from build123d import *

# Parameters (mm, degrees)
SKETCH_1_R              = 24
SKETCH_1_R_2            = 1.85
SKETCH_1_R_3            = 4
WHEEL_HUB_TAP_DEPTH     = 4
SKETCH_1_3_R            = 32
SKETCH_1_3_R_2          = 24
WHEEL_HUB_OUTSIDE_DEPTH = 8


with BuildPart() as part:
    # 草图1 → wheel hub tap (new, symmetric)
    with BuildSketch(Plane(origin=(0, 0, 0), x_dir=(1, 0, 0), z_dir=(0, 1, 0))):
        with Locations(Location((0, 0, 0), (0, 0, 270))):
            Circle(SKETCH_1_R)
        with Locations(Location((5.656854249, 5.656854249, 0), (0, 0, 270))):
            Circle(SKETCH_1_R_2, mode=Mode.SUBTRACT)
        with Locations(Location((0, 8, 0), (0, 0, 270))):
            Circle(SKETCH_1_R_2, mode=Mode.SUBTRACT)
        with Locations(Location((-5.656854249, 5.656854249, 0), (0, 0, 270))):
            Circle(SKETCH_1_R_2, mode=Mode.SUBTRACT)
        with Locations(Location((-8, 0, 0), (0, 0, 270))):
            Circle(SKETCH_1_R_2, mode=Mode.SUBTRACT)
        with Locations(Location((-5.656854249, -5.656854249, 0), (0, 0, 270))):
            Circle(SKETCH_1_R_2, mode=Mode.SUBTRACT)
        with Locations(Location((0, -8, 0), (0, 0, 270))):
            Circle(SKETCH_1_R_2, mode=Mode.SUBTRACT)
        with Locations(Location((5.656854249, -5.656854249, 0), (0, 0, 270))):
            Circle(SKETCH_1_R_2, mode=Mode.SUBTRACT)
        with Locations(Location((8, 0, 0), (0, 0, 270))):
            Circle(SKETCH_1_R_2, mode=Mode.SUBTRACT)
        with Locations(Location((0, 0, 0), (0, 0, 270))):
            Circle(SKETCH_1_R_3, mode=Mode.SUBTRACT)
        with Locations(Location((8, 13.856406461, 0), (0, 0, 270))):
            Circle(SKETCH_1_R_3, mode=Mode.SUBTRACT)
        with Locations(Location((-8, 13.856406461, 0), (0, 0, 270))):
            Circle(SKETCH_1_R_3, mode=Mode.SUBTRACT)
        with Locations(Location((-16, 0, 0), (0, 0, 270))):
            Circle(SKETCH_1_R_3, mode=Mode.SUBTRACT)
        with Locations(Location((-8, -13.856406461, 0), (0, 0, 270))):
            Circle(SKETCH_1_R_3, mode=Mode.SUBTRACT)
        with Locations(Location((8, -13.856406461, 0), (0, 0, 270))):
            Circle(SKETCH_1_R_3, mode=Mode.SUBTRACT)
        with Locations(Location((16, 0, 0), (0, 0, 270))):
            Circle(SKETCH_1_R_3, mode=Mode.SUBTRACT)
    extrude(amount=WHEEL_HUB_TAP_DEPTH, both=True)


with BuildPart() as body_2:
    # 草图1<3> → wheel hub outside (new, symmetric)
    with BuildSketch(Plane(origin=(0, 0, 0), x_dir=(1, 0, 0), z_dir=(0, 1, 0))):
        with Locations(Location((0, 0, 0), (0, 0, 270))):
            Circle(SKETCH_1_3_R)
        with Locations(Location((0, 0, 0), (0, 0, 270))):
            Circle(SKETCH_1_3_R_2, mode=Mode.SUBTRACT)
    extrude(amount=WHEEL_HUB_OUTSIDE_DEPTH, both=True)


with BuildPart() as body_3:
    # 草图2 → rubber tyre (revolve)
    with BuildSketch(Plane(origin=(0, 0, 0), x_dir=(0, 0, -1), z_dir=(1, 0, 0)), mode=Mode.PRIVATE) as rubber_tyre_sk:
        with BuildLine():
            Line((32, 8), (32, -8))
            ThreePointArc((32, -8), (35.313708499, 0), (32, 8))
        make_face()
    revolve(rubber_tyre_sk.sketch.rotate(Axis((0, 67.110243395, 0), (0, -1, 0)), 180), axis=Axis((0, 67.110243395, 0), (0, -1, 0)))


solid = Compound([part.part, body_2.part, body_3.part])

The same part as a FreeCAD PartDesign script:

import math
import FreeCAD as App
import Part
import Sketcher

V = App.Vector

doc = App.newDocument("Part")
body = doc.addObject("PartDesign::Body", "Body")

sketch1 = body.newObject("Sketcher::SketchObject", "Sketch")
sketch1.AttachmentSupport = (doc.getObject("XZ_Plane"), [""])
sketch1.MapMode = "FlatFace"
sketch1.addGeometry([
    Part.Circle(V(0, 0, 0), V(0, 0, 1), 24),
    Part.Circle(V(-8, -13.9, 0), V(0, 0, 1), 4),
    Part.Circle(V(-5.7, -5.7, 0), V(0, 0, 1), 1.9),
    Part.Circle(V(-16, 0, 0), V(0, 0, 1), 4),
    Part.Circle(V(-8, 0, 0), V(0, 0, 1), 1.9),
    Part.Circle(V(-5.7, 5.7, 0), V(0, 0, 1), 1.9),
    Part.Circle(V(-8, 13.9, 0), V(0, 0, 1), 4),
    Part.Circle(V(8, -13.9, 0), V(0, 0, 1), 4),
    Part.Circle(V(0, -8, 0), V(0, 0, 1), 1.9),
    Part.Circle(V(0, 0, 0), V(0, 0, 1), 4),
    Part.Circle(V(5.7, -5.7, 0), V(0, 0, 1), 1.9),
    Part.Circle(V(8, 0, 0), V(0, 0, 1), 1.9),
    Part.Circle(V(16, 0, 0), V(0, 0, 1), 4),
    Part.Circle(V(0, 8, 0), V(0, 0, 1), 1.9),
    Part.Circle(V(5.7, 5.7, 0), V(0, 0, 1), 1.9),
    Part.Circle(V(8, 13.9, 0), V(0, 0, 1), 4),
], False)
sketch1.addConstraint([
    Sketcher.Constraint("Coincident", 0, 3, -1, 1),
    Sketcher.Constraint("Coincident", 9, 3, -1, 1),
    Sketcher.Constraint("Equal", 1, 3),
    Sketcher.Constraint("Equal", 2, 4),
    Sketcher.Constraint("Equal", 4, 5),
    Sketcher.Constraint("Equal", 3, 6),
    Sketcher.Constraint("Equal", 6, 7),
    Sketcher.Constraint("Equal", 5, 8),
    Sketcher.Constraint("Equal", 7, 9),
    Sketcher.Constraint("Equal", 8, 10),
    Sketcher.Constraint("Equal", 10, 11),
    Sketcher.Constraint("Equal", 9, 12),
    Sketcher.Constraint("Equal", 11, 13),
    Sketcher.Constraint("Equal", 13, 14),
    Sketcher.Constraint("Equal", 12, 15),
    Sketcher.Constraint("Symmetric", 6, 3, 7, 3, -1, 1),
    Sketcher.Constraint("Symmetric", 5, 3, 10, 3, -1, 1),
    Sketcher.Constraint("Symmetric", 4, 3, 11, 3, -1, 1),
    Sketcher.Constraint("Symmetric", 3, 3, 12, 3, -1, 1),
    Sketcher.Constraint("Symmetric", 8, 3, 13, 3, -1, 1),
    Sketcher.Constraint("Symmetric", 2, 3, 14, 3, -1, 1),
    Sketcher.Constraint("Symmetric", 1, 3, 15, 3, -1, 1),
    Sketcher.Constraint("Symmetric", 1, 3, 7, 3, -2),
    Sketcher.Constraint("Symmetric", 2, 3, 10, 3, -2),
    Sketcher.Constraint("PointOnObject", 3, 3, -1),
    Sketcher.Constraint("PointOnObject", 4, 3, -1),
    Sketcher.Constraint("PointOnObject", 8, 3, -2),
    Sketcher.Constraint("Vertical", 1, 3, 4, 3),
    Sketcher.Constraint("Diameter", 0, 48.0),
    Sketcher.Constraint("Diameter", 1, 8.0),
    Sketcher.Constraint("Diameter", 2, 3.7),
    Sketcher.Constraint("DistanceX", 1, 3, -1, 1, 8.0),
    Sketcher.Constraint("DistanceX", 3, 3, -1, 1, 16.0),
    Sketcher.Constraint("DistanceY", 8, 3, -1, 1, 8.0),
    Sketcher.Constraint("DistanceY", 2, 3, 5, 3, 11.313708),
    Sketcher.Constraint("DistanceY", 1, 3, 5, 3, 19.513261),
    Sketcher.Constraint("DistanceX", 2, 3, 10, 3, 11.313708),
])
pad1 = body.newObject("PartDesign::Pad", "Pad")
pad1.Profile = sketch1
pad1.Length = 8
pad1.Midplane = True
body2 = doc.addObject("PartDesign::Body", "Body001")

sketch2 = body2.newObject("Sketcher::SketchObject", "Sketch001")
sketch2.AttachmentSupport = (doc.getObject("XZ_Plane001"), [""])
sketch2.MapMode = "FlatFace"
sketch2.addGeometry([
    Part.Circle(V(0, 0, 0), V(0, 0, 1), 32),
    Part.Circle(V(0, 0, 0), V(0, 0, 1), 24),
], False)
sketch2.addConstraint([
    Sketcher.Constraint("Coincident", 0, 3, -1, 1),
    Sketcher.Constraint("Coincident", 1, 3, -1, 1),
    Sketcher.Constraint("Diameter", 0, 64.0),
    Sketcher.Constraint("Diameter", 1, 48.0),
])
pad2 = body2.newObject("PartDesign::Pad", "Pad001")
pad2.Profile = sketch2
pad2.Length = 16
pad2.Midplane = True
body3 = doc.addObject("PartDesign::Body", "Body002")

sketch3 = body3.newObject("Sketcher::SketchObject", "Sketch002")
sketch3.AttachmentSupport = (doc.getObject("YZ_Plane002"), [""])
sketch3.MapMode = "FlatFace"
sketch3.addGeometry([
    Part.LineSegment(V(8, -32, 0), V(-8, -32, 0)),
    Part.ArcOfCircle(Part.Circle(V(0, -24, 0), V(0, 0, 1), 11), math.radians(-135), math.radians(-45)),
], False)
sketch3.addConstraint([
    Sketcher.Constraint("Coincident", 0, 1, 1, 2),
    Sketcher.Constraint("Coincident", 1, 1, 0, 2),
    Sketcher.Constraint("Horizontal", 0),
    Sketcher.Constraint("PointOnObject", 1, 3, -2),
    Sketcher.Constraint("DistanceX", 0, 2, 0, 1, 16.0),
    Sketcher.Constraint("DistanceY", 1, 3, -1, 1, 24.0),
    Sketcher.Constraint("DistanceY", 0, 1, -1, 1, 32.0),
])
revolution = body3.newObject("PartDesign::Revolution", "Revolution")
revolution.Profile = sketch3
revolution.ReferenceAxis = (sketch3, ["H_Axis"])
revolution.Angle = 360

doc.recompute()
